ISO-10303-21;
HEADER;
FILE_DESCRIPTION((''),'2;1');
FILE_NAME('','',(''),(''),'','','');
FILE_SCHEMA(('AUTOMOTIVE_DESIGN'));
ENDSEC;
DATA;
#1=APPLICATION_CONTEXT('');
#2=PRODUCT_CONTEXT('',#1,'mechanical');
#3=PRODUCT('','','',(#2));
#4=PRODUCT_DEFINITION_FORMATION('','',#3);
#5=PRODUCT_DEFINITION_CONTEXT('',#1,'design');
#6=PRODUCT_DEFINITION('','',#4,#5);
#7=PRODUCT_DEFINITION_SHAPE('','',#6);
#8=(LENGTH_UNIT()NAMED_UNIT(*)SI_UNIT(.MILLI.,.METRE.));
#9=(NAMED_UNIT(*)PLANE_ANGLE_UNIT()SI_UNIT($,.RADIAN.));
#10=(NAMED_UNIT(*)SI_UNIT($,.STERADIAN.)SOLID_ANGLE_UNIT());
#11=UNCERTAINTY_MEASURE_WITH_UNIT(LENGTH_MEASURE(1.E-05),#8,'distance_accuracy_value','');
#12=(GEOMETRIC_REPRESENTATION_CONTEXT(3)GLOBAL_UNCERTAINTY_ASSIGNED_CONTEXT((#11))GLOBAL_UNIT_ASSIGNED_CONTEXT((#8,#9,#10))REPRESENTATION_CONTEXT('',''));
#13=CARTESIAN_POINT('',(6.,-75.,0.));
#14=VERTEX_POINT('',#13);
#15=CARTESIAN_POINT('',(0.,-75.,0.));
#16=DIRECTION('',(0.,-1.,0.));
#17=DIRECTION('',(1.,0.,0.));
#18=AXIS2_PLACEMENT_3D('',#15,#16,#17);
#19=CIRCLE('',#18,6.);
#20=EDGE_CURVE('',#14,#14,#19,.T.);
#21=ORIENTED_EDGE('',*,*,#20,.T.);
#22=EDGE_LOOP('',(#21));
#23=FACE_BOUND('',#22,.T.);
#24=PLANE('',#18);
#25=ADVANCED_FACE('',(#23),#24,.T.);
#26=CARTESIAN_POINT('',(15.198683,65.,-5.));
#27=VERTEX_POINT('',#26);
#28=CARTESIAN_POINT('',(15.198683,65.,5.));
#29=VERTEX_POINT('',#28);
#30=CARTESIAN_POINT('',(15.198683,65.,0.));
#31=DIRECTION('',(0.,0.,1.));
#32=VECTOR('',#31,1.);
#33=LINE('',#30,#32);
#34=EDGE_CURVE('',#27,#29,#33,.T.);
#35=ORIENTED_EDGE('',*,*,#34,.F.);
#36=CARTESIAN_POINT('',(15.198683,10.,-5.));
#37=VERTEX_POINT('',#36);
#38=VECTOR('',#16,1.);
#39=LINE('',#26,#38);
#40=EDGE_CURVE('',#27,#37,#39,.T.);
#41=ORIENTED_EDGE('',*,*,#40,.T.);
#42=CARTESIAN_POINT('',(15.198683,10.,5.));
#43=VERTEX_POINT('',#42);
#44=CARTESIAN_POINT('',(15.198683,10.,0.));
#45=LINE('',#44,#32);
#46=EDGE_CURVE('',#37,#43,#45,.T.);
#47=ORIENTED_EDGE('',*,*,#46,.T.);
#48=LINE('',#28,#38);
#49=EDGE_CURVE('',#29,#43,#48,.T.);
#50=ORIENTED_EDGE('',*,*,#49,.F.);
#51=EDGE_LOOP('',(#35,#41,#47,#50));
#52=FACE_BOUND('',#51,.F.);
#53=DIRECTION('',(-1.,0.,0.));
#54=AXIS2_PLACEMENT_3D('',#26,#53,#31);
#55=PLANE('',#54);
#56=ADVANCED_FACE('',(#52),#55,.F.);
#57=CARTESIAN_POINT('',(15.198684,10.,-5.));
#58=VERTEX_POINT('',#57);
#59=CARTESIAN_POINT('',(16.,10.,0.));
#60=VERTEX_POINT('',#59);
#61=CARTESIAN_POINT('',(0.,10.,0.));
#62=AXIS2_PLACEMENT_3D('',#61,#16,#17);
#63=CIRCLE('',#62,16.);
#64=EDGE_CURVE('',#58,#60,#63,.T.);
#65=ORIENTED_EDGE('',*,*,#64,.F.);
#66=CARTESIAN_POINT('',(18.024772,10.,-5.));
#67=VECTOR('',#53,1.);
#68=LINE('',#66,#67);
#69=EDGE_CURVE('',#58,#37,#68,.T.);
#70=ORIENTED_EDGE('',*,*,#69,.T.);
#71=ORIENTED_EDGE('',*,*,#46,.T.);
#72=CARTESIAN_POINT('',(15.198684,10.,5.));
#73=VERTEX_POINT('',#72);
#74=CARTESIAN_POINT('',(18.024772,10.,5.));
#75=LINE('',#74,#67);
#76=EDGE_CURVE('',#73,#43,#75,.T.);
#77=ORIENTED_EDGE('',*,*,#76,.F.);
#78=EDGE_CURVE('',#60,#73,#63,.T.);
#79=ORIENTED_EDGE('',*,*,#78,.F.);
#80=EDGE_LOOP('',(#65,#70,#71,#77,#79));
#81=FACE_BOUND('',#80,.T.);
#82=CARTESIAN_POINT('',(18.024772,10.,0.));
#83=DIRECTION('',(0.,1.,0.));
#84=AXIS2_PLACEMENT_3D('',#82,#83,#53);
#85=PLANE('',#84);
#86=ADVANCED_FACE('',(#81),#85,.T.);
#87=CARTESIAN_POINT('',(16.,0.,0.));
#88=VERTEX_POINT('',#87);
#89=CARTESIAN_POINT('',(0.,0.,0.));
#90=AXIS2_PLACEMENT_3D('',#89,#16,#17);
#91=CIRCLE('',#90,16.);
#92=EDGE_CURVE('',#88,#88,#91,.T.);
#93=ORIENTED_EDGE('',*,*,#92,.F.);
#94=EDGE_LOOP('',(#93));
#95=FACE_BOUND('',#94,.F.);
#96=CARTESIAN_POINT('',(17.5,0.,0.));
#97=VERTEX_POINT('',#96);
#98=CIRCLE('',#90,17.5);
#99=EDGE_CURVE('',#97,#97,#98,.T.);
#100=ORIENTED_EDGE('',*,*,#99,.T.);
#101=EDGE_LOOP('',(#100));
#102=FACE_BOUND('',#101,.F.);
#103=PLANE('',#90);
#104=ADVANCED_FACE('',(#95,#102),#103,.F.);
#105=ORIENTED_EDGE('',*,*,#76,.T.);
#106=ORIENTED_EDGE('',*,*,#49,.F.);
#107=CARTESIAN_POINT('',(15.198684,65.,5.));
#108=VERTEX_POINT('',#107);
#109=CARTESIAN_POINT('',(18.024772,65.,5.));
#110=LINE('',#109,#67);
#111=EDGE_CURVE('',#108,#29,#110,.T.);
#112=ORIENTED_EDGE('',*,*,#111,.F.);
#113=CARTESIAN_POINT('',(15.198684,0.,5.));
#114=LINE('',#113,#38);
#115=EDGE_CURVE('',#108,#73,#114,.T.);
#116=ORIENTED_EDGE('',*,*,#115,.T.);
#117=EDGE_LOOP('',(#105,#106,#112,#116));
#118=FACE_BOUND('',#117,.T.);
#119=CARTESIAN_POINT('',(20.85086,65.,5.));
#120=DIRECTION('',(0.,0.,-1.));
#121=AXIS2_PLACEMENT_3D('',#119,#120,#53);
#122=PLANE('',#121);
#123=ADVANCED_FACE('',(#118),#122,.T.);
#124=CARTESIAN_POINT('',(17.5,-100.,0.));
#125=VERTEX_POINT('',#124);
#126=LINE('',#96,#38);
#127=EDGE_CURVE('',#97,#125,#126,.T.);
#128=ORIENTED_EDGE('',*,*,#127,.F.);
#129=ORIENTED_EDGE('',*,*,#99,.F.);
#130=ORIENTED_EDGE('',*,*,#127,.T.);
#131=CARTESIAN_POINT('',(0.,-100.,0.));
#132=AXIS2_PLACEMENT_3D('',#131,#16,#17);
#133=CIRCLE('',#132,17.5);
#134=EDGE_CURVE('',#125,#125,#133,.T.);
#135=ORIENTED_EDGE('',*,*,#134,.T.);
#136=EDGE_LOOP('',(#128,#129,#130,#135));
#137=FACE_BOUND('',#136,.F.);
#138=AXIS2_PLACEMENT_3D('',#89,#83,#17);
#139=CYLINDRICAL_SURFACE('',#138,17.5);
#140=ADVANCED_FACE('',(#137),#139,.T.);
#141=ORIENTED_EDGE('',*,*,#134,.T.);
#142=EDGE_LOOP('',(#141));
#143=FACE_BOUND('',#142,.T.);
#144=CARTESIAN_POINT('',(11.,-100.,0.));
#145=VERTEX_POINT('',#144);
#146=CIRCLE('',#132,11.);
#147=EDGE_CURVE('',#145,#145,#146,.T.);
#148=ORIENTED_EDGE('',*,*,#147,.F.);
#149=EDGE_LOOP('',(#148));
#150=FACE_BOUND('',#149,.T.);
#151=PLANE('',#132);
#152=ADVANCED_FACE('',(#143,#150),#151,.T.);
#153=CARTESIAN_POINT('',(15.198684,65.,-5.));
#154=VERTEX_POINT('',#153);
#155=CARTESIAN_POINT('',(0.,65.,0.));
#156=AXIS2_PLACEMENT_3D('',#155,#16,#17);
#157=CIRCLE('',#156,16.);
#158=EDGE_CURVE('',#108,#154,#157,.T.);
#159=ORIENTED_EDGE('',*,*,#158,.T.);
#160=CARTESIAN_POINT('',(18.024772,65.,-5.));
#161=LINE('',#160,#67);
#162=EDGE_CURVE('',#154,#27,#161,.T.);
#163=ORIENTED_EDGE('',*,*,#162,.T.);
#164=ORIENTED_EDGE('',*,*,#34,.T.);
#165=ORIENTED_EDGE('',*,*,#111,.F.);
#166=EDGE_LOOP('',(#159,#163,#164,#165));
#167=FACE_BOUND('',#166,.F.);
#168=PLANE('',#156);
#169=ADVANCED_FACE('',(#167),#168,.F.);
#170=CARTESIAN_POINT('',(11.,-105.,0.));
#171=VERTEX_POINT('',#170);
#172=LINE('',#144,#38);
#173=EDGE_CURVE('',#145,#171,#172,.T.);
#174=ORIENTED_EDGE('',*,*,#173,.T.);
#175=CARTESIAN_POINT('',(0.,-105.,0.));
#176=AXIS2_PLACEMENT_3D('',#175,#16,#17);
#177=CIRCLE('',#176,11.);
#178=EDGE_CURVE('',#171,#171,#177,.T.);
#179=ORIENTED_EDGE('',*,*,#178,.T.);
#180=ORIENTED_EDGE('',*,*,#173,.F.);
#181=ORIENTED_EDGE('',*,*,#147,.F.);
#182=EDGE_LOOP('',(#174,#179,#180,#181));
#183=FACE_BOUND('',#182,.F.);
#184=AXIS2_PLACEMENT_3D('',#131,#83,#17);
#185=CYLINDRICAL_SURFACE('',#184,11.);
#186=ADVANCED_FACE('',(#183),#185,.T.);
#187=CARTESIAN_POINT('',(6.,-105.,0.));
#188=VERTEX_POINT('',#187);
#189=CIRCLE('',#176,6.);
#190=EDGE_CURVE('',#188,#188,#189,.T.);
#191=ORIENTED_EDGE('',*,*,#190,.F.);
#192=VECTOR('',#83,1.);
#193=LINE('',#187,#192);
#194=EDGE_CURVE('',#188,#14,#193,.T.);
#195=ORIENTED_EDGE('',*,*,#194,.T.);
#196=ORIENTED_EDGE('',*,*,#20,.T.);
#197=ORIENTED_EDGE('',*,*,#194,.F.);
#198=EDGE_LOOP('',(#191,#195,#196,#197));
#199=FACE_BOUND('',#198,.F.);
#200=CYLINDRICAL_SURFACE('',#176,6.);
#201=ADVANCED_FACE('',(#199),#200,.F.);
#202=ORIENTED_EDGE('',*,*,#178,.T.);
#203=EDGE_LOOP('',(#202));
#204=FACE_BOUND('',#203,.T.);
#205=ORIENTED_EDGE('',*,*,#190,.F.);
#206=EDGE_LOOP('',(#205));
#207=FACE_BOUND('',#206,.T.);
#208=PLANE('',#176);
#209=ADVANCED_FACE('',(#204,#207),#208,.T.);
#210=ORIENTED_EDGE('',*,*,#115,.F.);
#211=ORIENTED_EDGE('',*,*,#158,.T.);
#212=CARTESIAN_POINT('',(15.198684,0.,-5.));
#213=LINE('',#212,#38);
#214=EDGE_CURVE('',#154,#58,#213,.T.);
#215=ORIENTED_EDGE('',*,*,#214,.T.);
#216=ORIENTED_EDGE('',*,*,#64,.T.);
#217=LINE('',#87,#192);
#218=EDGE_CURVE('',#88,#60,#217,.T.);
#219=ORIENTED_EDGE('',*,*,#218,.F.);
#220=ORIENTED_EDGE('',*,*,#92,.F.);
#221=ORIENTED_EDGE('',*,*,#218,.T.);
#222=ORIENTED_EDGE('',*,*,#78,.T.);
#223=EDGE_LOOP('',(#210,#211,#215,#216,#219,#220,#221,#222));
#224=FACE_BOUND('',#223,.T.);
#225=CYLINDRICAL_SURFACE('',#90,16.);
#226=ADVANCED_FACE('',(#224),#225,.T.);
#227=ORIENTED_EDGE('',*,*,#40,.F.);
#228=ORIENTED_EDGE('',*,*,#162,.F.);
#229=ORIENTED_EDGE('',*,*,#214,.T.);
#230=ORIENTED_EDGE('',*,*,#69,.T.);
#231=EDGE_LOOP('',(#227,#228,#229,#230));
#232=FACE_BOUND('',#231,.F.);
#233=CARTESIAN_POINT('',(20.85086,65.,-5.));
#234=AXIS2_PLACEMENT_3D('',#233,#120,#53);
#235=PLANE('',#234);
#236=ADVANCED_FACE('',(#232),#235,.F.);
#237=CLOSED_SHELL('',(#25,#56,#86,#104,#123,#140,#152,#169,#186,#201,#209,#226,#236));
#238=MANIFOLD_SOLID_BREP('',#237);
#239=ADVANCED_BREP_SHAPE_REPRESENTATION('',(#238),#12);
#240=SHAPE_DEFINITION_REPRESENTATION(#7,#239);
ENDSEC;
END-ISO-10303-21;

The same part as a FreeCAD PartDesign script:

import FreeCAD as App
import Part
import Sketcher

V = App.Vector
Q = App.Units.Quantity

doc = App.newDocument("Part")
body = doc.addObject("PartDesign::Body", "Body")

sketch1 = body.newObject("Sketcher::SketchObject", "Sketch")
sketch1.AttachmentSupport = (doc.getObject("XZ_Plane"), [""])
sketch1.MapMode = "FlatFace"
sketch1.addGeometry(Part.Circle(V(0, 0, 0), V(0, 0, 1), 17.5), False)
sketch1.addConstraint([
    Sketcher.Constraint("Coincident", 0, 3, -1, 1),
    Sketcher.Constraint("Diameter", 0, Q("35 mm")),
])
pad1 = body.newObject("PartDesign::Pad", "Pad")
pad1.Profile = sketch1
pad1.Length = 100

sketch2 = body.newObject("Sketcher::SketchObject", "Sketch001")
sketch2.AttachmentSupport = (doc.getObject("XZ_Plane"), [""])
sketch2.MapMode = "FlatFace"
sketch2.AttachmentOffset = App.Placement(V(0, 0, 100), App.Rotation())
sketch2.addGeometry(Part.Circle(V(0, 0, 0), V(0, 0, 1), 11), False)
sketch2.addConstraint([
    Sketcher.Constraint("Coincident", 0, 3, -1, 1),
    Sketcher.Constraint("Diameter", 0, Q("22 mm")),
])
pad2 = body.newObject("PartDesign::Pad", "Pad001")
pad2.Profile = sketch2
pad2.Length = 5

sketch3 = body.newObject("Sketcher::SketchObject", "Sketch002")
sketch3.AttachmentSupport = (doc.getObject("XZ_Plane"), [""])
sketch3.MapMode = "FlatFace"
sketch3.AttachmentOffset = App.Placement(V(0, 0, 105), App.Rotation())
sketch3.addGeometry(Part.Circle(V(0, 0, 0), V(0, 0, 1), 6), False)
sketch3.addConstraint([
    Sketcher.Constraint("Coincident", 0, 3, -1, 1),
    Sketcher.Constraint("Diameter", 0, Q("12 mm")),
])
pocket1 = body.newObject("PartDesign::Pocket", "Pocket")
pocket1.Profile = sketch3
pocket1.Length = 30

sketch4 = body.newObject("Sketcher::SketchObject", "Sketch003")
sketch4.AttachmentSupport = (doc.getObject("XZ_Plane"), [""])
sketch4.MapMode = "FlatFace"
sketch4.addGeometry(Part.Circle(V(0, 0, 0), V(0, 0, 1), 16), False)
sketch4.addConstraint([
    Sketcher.Constraint("Coincident", 0, 3, -1, 1),
    Sketcher.Constraint("Diameter", 0, Q("32 mm")),
])
pad3 = body.newObject("PartDesign::Pad", "Pad002")
pad3.Profile = sketch4
pad3.Length = 65
pad3.Reversed = True

sketch5 = body.newObject("Sketcher::SketchObject", "Sketch004")
sketch5.AttachmentSupport = (doc.getObject("XZ_Plane"), [""])
sketch5.MapMode = "FlatFace"
sketch5.AttachmentOffset = App.Placement(V(0, 0, -65), App.Rotation())
sketch5.addGeometry([
    Part.LineSegment(V(20.85086, 5, 0), V(20.85086, -5, 0)),
    Part.LineSegment(V(20.85086, -5, 0), V(15.198683, -5, 0)),
    Part.LineSegment(V(15.198683, -5, 0), V(15.198683, 5, 0)),
    Part.LineSegment(V(15.198683, 5, 0), V(20.85086, 5, 0)),
], False)
sketch5.addConstraint([
    Sketcher.Constraint("Coincident", 0, 2, 1, 1),
    Sketcher.Constraint("Coincident", 1, 2, 2, 1),
    Sketcher.Constraint("Coincident", 2, 2, 3, 1),
    Sketcher.Constraint("Coincident", 3, 2, 0, 1),
    Sketcher.Constraint("Vertical", 0),
    Sketcher.Constraint("Horizontal", 1),
    Sketcher.Constraint("Vertical", 2),
    Sketcher.Constraint("Horizontal", 3),
    Sketcher.Constraint("DistanceY", 0, 2, 0, 1, Q("10 mm")),
    Sketcher.Constraint("DistanceY", 0, 2, -1, 1, Q("5 mm")),
    Sketcher.Constraint("DistanceX", 1, 2, 1, 1, Q("5.652177 mm")),
    Sketcher.Constraint("DistanceX", -1, 1, 0, 2, Q("20.85086 mm")),
])
pocket2 = body.newObject("PartDesign::Pocket", "Pocket001")
pocket2.Profile = sketch5
pocket2.Length = 55
pocket2.Reversed = True

doc.recompute()
